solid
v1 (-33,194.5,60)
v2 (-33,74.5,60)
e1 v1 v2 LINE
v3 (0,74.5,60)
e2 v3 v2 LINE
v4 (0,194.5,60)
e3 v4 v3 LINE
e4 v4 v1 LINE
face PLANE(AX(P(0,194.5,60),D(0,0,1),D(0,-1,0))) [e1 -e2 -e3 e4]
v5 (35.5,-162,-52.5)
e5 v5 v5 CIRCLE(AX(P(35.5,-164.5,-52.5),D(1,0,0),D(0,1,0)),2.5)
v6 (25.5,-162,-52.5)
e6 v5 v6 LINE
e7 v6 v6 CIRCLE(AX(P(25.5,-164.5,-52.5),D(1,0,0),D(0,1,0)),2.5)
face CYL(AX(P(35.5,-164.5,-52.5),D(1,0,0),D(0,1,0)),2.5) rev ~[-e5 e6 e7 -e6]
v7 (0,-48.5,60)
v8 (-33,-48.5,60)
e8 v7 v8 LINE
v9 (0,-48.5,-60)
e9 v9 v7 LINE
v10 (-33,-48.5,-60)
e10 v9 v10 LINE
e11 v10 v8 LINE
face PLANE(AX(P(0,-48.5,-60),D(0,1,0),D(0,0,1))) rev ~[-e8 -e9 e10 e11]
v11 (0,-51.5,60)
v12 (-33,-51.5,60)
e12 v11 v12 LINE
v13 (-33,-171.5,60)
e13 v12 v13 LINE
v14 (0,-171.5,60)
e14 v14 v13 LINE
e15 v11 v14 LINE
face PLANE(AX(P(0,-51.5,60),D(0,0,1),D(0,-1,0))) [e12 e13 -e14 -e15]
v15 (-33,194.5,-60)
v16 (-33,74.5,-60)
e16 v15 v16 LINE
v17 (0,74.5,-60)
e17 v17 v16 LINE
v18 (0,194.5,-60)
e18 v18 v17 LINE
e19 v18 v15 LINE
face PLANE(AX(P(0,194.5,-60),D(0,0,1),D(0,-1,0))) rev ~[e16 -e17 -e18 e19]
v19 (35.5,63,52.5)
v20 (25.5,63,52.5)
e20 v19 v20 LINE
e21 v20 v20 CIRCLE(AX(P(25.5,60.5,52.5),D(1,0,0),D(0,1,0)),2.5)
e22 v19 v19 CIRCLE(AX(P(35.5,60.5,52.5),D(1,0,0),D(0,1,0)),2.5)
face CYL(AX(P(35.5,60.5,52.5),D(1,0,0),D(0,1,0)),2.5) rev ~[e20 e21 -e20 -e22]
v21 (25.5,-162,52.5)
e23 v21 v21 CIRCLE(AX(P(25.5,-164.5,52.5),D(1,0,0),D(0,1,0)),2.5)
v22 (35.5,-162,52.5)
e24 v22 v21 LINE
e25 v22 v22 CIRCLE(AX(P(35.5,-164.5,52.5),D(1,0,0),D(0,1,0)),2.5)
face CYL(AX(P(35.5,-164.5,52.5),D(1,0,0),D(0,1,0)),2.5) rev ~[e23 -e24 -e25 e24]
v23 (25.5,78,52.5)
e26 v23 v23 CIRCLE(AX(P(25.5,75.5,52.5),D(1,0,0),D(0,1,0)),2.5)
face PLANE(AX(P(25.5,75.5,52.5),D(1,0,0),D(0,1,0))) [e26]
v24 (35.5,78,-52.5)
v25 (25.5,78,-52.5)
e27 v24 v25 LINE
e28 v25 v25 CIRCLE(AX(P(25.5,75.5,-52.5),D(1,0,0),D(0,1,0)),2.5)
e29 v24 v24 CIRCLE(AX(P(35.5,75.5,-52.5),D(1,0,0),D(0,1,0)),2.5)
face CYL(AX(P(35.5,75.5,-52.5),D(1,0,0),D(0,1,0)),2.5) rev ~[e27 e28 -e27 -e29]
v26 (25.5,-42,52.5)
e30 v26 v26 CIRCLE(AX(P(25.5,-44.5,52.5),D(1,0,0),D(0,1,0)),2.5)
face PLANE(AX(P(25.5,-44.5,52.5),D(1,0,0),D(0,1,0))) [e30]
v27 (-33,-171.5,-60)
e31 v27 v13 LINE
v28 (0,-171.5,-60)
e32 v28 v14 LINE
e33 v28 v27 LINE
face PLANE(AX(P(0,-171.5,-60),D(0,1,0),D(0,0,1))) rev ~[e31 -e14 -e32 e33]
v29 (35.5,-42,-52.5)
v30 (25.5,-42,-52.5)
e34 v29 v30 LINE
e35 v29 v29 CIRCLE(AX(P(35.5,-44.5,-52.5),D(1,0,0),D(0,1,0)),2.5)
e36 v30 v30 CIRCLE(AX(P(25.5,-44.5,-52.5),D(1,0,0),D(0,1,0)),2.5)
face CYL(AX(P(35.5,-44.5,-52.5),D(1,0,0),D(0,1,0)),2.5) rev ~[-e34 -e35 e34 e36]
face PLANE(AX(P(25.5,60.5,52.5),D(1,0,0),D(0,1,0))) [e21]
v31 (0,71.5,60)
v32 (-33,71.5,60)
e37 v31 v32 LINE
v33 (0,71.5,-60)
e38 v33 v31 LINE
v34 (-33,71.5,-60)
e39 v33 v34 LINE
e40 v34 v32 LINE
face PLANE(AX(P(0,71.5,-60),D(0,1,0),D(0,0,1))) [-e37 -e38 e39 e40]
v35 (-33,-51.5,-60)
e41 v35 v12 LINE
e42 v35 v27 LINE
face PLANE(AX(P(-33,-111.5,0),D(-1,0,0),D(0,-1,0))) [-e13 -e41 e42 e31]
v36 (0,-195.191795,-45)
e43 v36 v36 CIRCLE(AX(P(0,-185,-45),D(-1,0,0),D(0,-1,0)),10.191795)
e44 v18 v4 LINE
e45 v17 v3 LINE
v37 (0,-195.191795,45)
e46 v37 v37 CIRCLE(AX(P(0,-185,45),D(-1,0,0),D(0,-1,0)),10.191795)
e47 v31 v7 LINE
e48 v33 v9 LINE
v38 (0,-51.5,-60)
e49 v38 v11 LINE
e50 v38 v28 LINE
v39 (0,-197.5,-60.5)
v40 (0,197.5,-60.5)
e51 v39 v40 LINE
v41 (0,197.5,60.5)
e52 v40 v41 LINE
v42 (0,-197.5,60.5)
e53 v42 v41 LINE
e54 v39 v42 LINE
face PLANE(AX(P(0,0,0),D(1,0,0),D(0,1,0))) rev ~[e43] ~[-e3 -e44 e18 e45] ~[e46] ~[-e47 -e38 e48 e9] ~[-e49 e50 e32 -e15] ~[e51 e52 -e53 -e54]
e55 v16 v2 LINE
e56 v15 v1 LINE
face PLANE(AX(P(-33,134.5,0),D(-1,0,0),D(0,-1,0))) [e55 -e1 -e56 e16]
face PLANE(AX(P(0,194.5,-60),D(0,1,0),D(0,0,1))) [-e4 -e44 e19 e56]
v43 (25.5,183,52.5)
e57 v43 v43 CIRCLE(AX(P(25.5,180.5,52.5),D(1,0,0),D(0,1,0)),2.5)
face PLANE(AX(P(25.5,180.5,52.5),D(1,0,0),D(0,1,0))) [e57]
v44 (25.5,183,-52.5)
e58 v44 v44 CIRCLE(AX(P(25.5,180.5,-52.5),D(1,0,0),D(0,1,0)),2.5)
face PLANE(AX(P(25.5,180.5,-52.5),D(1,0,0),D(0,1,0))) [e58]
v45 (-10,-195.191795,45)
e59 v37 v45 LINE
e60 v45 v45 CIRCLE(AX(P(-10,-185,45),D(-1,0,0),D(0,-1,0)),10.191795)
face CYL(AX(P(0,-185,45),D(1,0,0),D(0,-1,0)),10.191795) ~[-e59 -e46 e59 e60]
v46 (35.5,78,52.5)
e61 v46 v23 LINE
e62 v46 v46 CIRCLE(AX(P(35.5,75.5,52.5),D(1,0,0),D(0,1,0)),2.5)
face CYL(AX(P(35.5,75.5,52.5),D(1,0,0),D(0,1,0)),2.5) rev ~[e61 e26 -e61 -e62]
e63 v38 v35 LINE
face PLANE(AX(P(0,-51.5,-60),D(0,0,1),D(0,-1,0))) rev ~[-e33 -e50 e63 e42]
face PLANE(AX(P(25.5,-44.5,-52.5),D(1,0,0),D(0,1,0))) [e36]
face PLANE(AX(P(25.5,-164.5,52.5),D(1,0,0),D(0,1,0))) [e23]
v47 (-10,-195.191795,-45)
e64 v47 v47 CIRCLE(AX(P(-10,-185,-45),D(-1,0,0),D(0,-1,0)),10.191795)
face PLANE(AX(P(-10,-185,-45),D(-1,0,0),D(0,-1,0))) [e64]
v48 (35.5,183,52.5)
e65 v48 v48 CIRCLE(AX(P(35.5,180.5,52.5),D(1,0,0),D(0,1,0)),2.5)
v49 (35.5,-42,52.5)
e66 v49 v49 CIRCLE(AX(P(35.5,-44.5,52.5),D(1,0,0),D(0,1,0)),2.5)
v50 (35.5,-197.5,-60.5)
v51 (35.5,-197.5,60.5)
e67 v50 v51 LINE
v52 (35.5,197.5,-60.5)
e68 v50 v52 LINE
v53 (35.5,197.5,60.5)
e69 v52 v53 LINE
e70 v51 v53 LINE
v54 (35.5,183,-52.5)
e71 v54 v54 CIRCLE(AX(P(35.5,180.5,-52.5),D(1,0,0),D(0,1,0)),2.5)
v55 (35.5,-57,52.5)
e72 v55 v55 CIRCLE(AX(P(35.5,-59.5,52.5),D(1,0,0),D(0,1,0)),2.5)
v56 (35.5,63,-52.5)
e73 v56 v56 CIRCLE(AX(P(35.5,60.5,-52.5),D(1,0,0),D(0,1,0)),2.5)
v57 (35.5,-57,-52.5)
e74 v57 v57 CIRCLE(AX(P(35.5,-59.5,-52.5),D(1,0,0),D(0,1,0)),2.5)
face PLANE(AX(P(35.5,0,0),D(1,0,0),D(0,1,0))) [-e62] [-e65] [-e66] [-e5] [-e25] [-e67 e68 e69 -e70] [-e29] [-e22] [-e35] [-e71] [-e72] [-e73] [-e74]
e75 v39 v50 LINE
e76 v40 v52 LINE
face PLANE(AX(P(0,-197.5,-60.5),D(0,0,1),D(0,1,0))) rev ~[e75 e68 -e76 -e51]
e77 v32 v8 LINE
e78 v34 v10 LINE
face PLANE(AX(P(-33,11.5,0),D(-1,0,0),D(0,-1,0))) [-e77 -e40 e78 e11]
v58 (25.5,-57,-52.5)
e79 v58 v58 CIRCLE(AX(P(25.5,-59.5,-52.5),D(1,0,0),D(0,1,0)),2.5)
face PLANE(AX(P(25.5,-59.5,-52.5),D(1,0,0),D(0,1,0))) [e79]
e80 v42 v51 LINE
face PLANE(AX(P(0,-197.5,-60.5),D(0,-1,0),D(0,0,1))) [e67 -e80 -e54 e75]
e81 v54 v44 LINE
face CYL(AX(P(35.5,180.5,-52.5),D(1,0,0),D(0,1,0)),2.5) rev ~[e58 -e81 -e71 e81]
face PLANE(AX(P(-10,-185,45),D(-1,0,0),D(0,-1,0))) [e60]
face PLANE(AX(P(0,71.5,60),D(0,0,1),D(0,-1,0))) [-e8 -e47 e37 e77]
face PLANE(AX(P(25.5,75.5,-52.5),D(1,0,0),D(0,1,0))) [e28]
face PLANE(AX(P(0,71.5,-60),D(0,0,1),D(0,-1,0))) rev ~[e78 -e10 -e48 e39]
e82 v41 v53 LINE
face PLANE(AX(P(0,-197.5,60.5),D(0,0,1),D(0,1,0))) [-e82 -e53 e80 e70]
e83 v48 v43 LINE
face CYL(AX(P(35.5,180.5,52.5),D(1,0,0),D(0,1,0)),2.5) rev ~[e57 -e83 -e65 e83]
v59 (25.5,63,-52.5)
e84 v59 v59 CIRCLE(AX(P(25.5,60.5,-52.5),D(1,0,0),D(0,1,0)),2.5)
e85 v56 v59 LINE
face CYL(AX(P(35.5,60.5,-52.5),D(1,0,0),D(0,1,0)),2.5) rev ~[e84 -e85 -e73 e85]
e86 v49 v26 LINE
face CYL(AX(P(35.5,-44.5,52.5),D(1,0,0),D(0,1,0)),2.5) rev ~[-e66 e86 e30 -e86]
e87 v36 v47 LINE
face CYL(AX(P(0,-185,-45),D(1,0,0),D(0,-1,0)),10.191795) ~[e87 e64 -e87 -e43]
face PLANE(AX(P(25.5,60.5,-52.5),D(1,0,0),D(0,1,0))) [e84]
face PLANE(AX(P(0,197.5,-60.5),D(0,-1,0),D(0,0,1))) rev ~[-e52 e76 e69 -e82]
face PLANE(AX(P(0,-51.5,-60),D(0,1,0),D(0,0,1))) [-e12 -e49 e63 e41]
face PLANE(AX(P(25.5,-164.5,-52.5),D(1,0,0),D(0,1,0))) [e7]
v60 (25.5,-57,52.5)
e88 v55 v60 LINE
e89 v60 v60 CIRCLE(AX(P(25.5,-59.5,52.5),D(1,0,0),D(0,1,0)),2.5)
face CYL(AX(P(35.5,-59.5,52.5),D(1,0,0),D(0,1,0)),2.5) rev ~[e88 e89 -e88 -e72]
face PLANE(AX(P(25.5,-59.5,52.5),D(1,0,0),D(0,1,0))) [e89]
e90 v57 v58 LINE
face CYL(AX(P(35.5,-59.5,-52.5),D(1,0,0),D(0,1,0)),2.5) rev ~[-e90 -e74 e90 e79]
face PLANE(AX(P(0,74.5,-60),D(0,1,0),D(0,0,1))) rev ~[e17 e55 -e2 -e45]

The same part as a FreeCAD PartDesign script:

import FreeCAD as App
import Part
import Sketcher
from FreeCAD import Vector
Q = App.Units.Quantity


def add_polygon(sketch, points):
    """Adds a closed chain of lines whose ends are joined by coincident constraints."""
    first, n = sketch.GeometryCount, len(points)
    for a, b in zip(points, points[1:] + points[:1]):
        sketch.addGeometry(Part.LineSegment(App.Vector(*a, 0), App.Vector(*b, 0)), False)
    for i in range(n):
        sketch.addConstraint(Sketcher.Constraint("Coincident", first + i, 2, first + (i + 1) % n, 1))

doc = App.newDocument("Part")
body = doc.addObject("PartDesign::Body", "Body")

# Sketch on YZ plane
sketch1 = body.newObject("Sketcher::SketchObject", "Sketch")
sketch1.AttachmentSupport = (doc.getObject("YZ_Plane"), [""])
sketch1.MapMode = "FlatFace"
add_polygon(sketch1, [(-198, 60), (-198, -60), (198, -60), (198, 60)])  # lines 0-3
sketch1.addConstraint([
    Sketcher.Constraint("Vertical", 0),
    Sketcher.Constraint("Horizontal", 1),
    Sketcher.Constraint("Vertical", 2),
    Sketcher.Constraint("Horizontal", 3),
    Sketcher.Constraint("Symmetric", 0, 2, 2, 2, -1, 1),
    Sketcher.Constraint("DistanceX", 1, 1, 1, 2, Q("395 mm")),
    Sketcher.Constraint("DistanceY", 0, 2, 0, 1, Q("121 mm")),
])
pad1 = body.newObject("PartDesign::Pad", "Pad")
pad1.Profile = sketch1
pad1.Length = 35.5

# Sketch on YZ plane
sketch2 = body.newObject("Sketcher::SketchObject", "Sketch001")
sketch2.AttachmentSupport = (doc.getObject("YZ_Plane"), [""])
sketch2.MapMode = "FlatFace"
add_polygon(sketch2, [(194, 60), (194, -60), (74, -60), (74, 60)])  # lines 0-3
add_polygon(sketch2, [(72, 60), (72, -60), (-48, -60), (-48, 60)])  # lines 4-7
add_polygon(sketch2, [(-52, 60), (-52, -60), (-172, -60), (-172, 60)])  # lines 8-11
sketch2.addConstraint([
    Sketcher.Constraint("Vertical", 0),
    Sketcher.Constraint("Horizontal", 1),
    Sketcher.Constraint("Vertical", 2),
    Sketcher.Constraint("Horizontal", 3),
    Sketcher.Constraint("Vertical", 4),
    Sketcher.Constraint("Horizontal", 5),
    Sketcher.Constraint("Vertical", 6),
    Sketcher.Constraint("Horizontal", 7),
    Sketcher.Constraint("Vertical", 8),
    Sketcher.Constraint("Horizontal", 9),
    Sketcher.Constraint("Vertical", 10),
    Sketcher.Constraint("Horizontal", 11),
    Sketcher.Constraint("Horizontal", 1, 2, 4, 2),
    Sketcher.Constraint("Horizontal", 3, 2, 6, 2),
    Sketcher.Constraint("Horizontal", 5, 2, 8, 2),
    Sketcher.Constraint("Horizontal", 7, 2, 10, 2),
    Sketcher.Constraint("Equal", 3, 5),
    Sketcher.Constraint("Equal", 7, 9),
    Sketcher.Constraint("Equal", 11, 0),
    Sketcher.Constraint("DistanceX", 1, 2, 1, 1, Q("120 mm")),
    Sketcher.Constraint("DistanceY", 0, 2, -1, 1, Q("60 mm")),
    Sketcher.Constraint("DistanceX", 4, 2, 1, 2, Q("3 mm")),
    Sketcher.Constraint("DistanceX", 8, 2, 5, 2, Q("3 mm")),
    Sketcher.Constraint("DistanceX", -1, 1, 0, 2, Q("194.5 mm")),
])
pad2 = body.newObject("PartDesign::Pad", "Pad001")
pad2.Profile = sketch2
pad2.Length = 33
pad2.Reversed = True

# Sketch on YZ plane
sketch3 = body.newObject("Sketcher::SketchObject", "Sketch002")
sketch3.AttachmentSupport = (doc.getObject("YZ_Plane"), [""])
sketch3.MapMode = "FlatFace"
sketch3.addGeometry([
    Part.Circle(Vector(-185, 45, 0), Vector(0, 0, 1), 10),
    Part.Circle(Vector(-185, -45, 0), Vector(0, 0, 1), 10),
], False)
sketch3.addConstraint([
    Sketcher.Constraint("Equal", 0, 1),
    Sketcher.Constraint("Symmetric", 0, 3, 1, 3, -1),
    Sketcher.Constraint("DistanceX", 0, 3, -1, 1, Q("185 mm")),
    Sketcher.Constraint("DistanceY", -1, 1, 0, 3, Q("45 mm")),
    Sketcher.Constraint("Diameter", 0, Q("20.38359 mm")),
])
pad3 = body.newObject("PartDesign::Pad", "Pad002")
pad3.Profile = sketch3
pad3.Length = 10
pad3.Reversed = True

# Sketch on YZ plane
sketch4 = body.newObject("Sketcher::SketchObject", "Sketch003")
sketch4.AttachmentSupport = (doc.getObject("YZ_Plane"), [""])
sketch4.MapMode = "FlatFace"
sketch4.AttachmentOffset = App.Placement(Vector(0, 0, 35.5), App.Rotation())
sketch4.addGeometry([
    Part.Circle(Vector(180.5, -52.5, 0), Vector(0, 0, 1), 2.5),  # 0
    Part.Circle(Vector(75.5, -52.5, 0), Vector(0, 0, 1), 2.5),  # 1
    Part.Circle(Vector(60.5, -52.5, 0), Vector(0, 0, 1), 2.5),  # 2
    Part.Circle(Vector(180.5, 52.5, 0), Vector(0, 0, 1), 2.5),  # 3
    Part.Circle(Vector(75.5, 52.5, 0), Vector(0, 0, 1), 2.5),  # 4
    Part.Circle(Vector(60.5, 52.5, 0), Vector(0, 0, 1), 2.5),  # 5
    Part.Circle(Vector(-44.5, 52.5, 0), Vector(0, 0, 1), 2.5),  # 6
    Part.Circle(Vector(-59.5, 52.5, 0), Vector(0, 0, 1), 2.5),  # 7
    Part.Circle(Vector(-164.5, 52.5, 0), Vector(0, 0, 1), 2.5),  # 8
    Part.Circle(Vector(-44.5, -52.5, 0), Vector(0, 0, 1), 2.5),  # 9
    Part.Circle(Vector(-164.5, -52.5, 0), Vector(0, 0, 1), 2.5),  # 10
    Part.Circle(Vector(-59.5, -52.5, 0), Vector(0, 0, 1), 2.5),  # 11
], False)
sketch4.addConstraint([
    Sketcher.Constraint("Equal", 0, 1),
    Sketcher.Constraint("Equal", 1, 2),
    Sketcher.Constraint("Equal", 2, 3),
    Sketcher.Constraint("Equal", 3, 4),
    Sketcher.Constraint("Equal", 4, 5),
    Sketcher.Constraint("Equal", 5, 6),
    Sketcher.Constraint("Equal", 6, 7),
    Sketcher.Constraint("Equal", 7, 8),
    Sketcher.Constraint("Equal", 8, 9),
    Sketcher.Constraint("Equal", 9, 10),
    Sketcher.Constraint("Equal", 10, 11),
    Sketcher.Constraint("Symmetric", 0, 3, 3, 3, -1),
    Sketcher.Constraint("Symmetric", 1, 3, 4, 3, -1),
    Sketcher.Constraint("Symmetric", 2, 3, 5, 3, -1),
    Sketcher.Constraint("Symmetric", 6, 3, 9, 3, -1),
    Sketcher.Constraint("Symmetric", 8, 3, 10, 3, -1),
    Sketcher.Constraint("Symmetric", 7, 3, 11, 3, -1),
    Sketcher.Constraint("Horizontal", 0, 3, 1, 3),
    Sketcher.Constraint("Horizontal", 1, 3, 2, 3),
    Sketcher.Constraint("Horizontal", 5, 3, 6, 3),
    Sketcher.Constraint("Horizontal", 6, 3, 7, 3),
    Sketcher.Constraint("Horizontal", 7, 3, 8, 3),
    Sketcher.Constraint("Diameter", 0, Q("5 mm")),
    Sketcher.Constraint("DistanceX", 1, 3, 0, 3, Q("105 mm")),
    Sketcher.Constraint("DistanceX", 2, 3, 1, 3, Q("15 mm")),
    Sketcher.Constraint("DistanceY", 0, 3, 3, 3, Q("105 mm")),
    Sketcher.Constraint("DistanceX", 6, 3, 5, 3, Q("105 mm")),
    Sketcher.Constraint("DistanceX", 7, 3, 6, 3, Q("15 mm")),
    Sketcher.Constraint("DistanceX", 8, 3, 7, 3, Q("105 mm")),
    Sketcher.Constraint("DistanceX", -1, 1, 0, 3, Q("180.5 mm")),
])
pocket1 = body.newObject("PartDesign::Pocket", "Pocket")
pocket1.Profile = sketch4
pocket1.Length = 10

doc.recompute()
